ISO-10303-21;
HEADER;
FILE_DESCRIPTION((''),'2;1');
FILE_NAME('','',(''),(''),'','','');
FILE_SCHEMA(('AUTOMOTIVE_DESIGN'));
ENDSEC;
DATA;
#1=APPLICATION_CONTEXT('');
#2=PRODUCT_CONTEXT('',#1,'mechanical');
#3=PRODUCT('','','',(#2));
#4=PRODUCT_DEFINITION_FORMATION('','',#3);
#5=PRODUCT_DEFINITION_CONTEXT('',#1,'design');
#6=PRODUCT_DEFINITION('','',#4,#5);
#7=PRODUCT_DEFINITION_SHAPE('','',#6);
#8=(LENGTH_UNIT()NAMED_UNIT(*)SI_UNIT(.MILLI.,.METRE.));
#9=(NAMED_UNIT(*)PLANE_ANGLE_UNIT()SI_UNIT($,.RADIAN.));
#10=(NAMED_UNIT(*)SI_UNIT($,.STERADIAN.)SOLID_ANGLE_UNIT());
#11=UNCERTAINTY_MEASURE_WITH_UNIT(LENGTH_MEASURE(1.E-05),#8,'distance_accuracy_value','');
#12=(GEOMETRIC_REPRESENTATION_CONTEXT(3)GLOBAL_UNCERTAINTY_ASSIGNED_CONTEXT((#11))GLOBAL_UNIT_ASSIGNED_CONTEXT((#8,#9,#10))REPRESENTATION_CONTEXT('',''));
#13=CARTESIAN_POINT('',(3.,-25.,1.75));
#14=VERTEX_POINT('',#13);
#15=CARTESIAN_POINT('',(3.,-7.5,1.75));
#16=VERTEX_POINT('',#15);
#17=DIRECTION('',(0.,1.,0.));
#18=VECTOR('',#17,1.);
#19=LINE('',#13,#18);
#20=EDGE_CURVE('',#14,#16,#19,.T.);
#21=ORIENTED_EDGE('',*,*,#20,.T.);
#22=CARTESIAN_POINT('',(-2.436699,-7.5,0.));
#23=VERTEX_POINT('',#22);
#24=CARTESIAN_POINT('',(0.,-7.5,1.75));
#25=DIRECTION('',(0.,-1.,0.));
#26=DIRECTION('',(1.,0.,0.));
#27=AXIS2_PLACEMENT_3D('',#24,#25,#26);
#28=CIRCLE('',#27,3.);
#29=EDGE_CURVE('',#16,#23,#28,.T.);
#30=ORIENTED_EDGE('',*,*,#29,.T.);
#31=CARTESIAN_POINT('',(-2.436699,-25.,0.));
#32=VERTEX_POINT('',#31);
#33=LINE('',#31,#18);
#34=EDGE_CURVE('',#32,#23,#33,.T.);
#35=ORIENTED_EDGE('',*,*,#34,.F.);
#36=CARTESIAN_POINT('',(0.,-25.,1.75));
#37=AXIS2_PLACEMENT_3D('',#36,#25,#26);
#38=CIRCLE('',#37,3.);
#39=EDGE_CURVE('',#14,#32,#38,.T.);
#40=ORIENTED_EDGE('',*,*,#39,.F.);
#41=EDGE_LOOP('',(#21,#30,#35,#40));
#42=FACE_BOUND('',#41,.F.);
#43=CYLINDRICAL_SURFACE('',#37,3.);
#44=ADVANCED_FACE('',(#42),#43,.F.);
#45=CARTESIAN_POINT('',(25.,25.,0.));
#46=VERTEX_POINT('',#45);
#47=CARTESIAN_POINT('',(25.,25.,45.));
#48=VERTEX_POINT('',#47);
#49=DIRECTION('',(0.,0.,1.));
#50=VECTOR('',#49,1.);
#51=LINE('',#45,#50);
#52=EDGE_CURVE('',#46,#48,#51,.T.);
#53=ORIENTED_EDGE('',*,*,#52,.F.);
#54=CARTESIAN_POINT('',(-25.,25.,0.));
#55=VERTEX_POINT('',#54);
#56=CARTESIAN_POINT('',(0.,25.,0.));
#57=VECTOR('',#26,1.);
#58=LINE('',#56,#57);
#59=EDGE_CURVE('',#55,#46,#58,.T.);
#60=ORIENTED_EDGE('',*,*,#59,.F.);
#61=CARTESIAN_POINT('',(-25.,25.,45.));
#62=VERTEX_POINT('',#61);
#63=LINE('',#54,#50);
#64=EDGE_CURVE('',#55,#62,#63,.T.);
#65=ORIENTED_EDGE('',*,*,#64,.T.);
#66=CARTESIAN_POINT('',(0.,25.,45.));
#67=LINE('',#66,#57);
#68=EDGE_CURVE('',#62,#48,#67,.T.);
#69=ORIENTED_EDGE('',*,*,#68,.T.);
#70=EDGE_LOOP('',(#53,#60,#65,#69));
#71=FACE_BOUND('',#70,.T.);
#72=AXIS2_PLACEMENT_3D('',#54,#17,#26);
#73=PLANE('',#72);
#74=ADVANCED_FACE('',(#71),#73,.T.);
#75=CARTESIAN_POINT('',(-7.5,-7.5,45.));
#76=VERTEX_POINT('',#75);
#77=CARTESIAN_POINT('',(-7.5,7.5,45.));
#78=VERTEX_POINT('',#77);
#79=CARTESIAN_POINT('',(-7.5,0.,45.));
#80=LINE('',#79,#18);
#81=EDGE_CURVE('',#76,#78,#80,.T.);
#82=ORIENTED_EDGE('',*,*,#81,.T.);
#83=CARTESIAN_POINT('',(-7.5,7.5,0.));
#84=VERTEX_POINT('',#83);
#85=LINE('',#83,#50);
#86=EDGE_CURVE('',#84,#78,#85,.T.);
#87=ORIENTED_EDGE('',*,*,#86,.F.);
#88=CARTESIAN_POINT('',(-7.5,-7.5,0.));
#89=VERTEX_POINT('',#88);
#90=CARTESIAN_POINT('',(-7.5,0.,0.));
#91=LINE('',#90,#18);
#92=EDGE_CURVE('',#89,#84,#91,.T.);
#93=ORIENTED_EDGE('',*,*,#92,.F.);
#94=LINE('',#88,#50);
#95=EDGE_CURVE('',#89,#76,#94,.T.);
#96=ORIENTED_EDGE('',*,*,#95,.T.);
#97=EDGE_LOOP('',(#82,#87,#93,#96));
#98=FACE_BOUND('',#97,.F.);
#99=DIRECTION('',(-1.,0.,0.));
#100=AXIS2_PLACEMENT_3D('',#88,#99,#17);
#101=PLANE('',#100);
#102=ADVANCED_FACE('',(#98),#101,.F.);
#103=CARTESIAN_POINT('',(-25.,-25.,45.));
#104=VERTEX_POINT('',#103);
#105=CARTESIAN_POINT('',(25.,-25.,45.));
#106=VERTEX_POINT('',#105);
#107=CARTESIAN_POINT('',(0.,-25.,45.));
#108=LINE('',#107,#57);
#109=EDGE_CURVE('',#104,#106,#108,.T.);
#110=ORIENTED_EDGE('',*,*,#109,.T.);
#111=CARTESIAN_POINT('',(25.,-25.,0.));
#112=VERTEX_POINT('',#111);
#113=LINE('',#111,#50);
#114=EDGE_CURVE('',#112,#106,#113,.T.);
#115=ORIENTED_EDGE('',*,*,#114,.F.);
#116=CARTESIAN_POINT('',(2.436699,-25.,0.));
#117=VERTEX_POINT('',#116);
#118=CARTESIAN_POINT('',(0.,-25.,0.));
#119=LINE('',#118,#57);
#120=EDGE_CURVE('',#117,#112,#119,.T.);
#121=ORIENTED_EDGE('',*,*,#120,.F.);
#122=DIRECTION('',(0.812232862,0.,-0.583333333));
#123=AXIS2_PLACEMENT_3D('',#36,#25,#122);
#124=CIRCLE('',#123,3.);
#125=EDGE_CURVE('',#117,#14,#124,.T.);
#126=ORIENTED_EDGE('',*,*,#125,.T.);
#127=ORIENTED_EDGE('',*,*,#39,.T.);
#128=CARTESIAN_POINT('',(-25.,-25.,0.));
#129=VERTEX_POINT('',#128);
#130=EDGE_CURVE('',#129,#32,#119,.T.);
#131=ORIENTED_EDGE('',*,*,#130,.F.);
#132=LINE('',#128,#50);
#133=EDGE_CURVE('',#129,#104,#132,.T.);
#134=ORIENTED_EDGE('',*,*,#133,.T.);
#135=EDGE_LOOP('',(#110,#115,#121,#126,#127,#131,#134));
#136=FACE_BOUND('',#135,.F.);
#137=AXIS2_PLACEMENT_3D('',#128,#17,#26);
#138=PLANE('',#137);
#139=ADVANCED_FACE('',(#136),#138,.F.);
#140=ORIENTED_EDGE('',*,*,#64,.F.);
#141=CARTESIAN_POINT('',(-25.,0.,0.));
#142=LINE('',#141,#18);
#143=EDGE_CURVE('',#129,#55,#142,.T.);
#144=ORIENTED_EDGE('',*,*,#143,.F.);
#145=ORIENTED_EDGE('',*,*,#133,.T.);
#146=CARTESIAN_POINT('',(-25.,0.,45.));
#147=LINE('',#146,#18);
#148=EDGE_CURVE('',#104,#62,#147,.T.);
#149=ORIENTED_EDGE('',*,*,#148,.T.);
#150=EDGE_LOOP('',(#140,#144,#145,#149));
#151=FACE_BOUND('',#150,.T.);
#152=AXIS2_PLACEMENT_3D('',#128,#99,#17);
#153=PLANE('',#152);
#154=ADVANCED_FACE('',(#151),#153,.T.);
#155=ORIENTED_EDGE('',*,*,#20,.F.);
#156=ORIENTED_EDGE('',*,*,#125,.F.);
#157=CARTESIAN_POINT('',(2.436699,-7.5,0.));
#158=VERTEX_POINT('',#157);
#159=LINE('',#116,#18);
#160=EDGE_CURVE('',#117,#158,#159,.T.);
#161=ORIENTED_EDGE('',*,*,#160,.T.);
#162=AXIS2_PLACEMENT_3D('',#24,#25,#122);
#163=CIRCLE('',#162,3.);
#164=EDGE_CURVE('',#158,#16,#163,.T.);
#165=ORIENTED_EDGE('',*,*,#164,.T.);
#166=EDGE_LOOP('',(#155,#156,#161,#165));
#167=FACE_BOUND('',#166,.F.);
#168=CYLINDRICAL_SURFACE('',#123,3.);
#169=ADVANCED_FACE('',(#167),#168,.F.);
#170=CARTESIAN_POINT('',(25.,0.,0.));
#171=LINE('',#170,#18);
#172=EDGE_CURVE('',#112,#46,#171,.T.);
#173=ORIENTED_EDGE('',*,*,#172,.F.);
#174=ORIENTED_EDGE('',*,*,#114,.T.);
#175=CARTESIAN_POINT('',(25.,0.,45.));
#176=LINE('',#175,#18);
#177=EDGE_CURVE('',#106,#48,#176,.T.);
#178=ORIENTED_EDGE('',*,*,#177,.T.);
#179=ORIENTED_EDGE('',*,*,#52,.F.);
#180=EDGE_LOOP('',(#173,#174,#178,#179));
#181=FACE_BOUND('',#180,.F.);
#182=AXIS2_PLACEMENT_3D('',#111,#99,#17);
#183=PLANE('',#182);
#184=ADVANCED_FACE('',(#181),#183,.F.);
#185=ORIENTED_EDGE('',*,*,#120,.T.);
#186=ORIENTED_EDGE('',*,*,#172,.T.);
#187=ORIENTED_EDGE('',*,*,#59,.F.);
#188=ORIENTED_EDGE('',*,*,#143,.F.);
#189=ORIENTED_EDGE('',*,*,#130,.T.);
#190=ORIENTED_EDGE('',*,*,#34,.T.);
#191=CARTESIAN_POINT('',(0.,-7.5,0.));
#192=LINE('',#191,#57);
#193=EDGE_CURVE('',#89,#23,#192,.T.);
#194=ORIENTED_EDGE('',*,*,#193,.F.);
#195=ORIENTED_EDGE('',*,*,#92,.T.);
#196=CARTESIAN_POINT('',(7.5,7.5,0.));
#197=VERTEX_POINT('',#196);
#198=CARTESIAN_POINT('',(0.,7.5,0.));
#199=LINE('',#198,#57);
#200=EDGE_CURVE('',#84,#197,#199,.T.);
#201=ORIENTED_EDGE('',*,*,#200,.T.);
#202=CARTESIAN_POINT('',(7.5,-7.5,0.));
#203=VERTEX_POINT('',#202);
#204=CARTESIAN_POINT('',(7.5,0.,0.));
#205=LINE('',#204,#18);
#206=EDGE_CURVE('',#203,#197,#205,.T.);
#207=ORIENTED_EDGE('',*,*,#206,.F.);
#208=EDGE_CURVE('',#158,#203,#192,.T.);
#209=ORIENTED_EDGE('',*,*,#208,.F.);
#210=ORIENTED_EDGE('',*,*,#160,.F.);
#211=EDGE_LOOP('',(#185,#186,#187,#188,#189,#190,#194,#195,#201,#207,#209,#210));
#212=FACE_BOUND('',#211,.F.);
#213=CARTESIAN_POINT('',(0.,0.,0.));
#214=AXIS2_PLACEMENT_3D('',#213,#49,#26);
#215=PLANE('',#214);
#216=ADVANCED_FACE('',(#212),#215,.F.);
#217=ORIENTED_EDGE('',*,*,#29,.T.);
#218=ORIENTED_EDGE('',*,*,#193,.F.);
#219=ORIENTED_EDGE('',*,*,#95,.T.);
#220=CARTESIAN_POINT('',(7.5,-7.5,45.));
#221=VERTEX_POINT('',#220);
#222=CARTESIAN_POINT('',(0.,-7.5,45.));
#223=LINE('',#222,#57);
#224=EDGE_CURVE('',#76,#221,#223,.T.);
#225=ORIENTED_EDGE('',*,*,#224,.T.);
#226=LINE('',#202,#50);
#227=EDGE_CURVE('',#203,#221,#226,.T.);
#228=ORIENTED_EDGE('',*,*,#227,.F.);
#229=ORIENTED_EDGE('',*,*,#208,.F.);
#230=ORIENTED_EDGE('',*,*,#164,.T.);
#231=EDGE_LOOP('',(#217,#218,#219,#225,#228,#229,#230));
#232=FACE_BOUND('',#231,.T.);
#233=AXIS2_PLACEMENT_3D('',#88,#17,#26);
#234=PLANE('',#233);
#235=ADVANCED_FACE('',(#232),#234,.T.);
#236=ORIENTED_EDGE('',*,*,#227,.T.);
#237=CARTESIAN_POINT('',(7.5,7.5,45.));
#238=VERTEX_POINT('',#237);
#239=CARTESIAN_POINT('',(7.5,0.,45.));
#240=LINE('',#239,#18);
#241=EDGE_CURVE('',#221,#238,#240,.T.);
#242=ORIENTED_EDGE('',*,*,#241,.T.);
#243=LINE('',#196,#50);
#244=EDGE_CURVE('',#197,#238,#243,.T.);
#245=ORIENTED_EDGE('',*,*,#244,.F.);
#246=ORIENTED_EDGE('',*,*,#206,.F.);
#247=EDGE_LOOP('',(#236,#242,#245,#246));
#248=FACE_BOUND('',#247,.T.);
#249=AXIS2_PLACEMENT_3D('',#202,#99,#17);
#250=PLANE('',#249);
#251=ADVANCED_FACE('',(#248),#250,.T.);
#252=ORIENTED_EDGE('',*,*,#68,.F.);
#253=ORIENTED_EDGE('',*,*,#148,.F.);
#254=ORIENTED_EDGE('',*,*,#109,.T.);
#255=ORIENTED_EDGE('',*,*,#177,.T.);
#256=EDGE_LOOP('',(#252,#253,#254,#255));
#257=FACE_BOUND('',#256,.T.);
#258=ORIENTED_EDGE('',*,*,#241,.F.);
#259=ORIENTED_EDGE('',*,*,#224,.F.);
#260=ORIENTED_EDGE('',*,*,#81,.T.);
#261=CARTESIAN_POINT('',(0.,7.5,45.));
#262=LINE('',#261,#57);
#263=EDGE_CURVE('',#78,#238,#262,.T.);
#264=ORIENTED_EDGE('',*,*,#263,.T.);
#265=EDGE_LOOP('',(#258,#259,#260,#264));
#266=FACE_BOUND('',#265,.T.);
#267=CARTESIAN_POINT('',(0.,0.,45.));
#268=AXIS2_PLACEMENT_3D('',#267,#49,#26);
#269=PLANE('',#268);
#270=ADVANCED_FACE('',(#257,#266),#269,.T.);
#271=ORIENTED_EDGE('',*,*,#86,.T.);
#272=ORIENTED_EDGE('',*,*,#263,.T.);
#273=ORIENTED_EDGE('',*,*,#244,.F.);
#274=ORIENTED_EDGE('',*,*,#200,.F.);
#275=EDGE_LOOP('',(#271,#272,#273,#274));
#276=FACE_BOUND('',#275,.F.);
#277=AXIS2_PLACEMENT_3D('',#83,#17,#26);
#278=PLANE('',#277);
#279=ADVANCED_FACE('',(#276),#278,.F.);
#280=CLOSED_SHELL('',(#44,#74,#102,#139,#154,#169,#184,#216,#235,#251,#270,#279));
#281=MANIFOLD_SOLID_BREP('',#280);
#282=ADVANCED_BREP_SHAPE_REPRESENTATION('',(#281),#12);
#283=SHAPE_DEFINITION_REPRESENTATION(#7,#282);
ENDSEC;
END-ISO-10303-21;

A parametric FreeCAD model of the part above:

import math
import FreeCAD as App
import Part
import Sketcher
from FreeCAD import Vector
Q = App.Units.Quantity

doc = App.newDocument("Part")
body = doc.addObject("PartDesign::Body", "Body")

# Sketch on XY plane
sketch1 = body.newObject("Sketcher::SketchObject", "Sketch")
sketch1.AttachmentSupport = (doc.getObject("XY_Plane"), [""])
sketch1.MapMode = "FlatFace"
sketch1.addGeometry(Part.LineSegment(Vector(-25, 25, 0), Vector(-25, -25, 0)), False)
sketch1.addGeometry(Part.LineSegment(Vector(-25, -25, 0), Vector(25, -25, 0)), False)
sketch1.addGeometry(Part.LineSegment(Vector(25, -25, 0), Vector(25, 25, 0)), False)
sketch1.addGeometry(Part.LineSegment(Vector(25, 25, 0), Vector(-25, 25, 0)), False)
sketch1.addGeometry(Part.LineSegment(Vector(8, -8, 0), Vector(-8, -8, 0)), False)
sketch1.addGeometry(Part.LineSegment(Vector(-8, -8, 0), Vector(-8, 8, 0)), False)
sketch1.addGeometry(Part.LineSegment(Vector(-8, 8, 0), Vector(8, 8, 0)), False)
sketch1.addGeometry(Part.LineSegment(Vector(8, 8, 0), Vector(8, -8, 0)), False)
sketch1.addConstraint(Sketcher.Constraint("Coincident", 0, 2, 1, 1))
sketch1.addConstraint(Sketcher.Constraint("Coincident", 1, 2, 2, 1))
sketch1.addConstraint(Sketcher.Constraint("Coincident", 2, 2, 3, 1))
sketch1.addConstraint(Sketcher.Constraint("Coincident", 3, 2, 0, 1))
sketch1.addConstraint(Sketcher.Constraint("Coincident", 4, 2, 5, 1))
sketch1.addConstraint(Sketcher.Constraint("Coincident", 5, 2, 6, 1))
sketch1.addConstraint(Sketcher.Constraint("Coincident", 6, 2, 7, 1))
sketch1.addConstraint(Sketcher.Constraint("Coincident", 7, 2, 4, 1))
sketch1.addConstraint(Sketcher.Constraint("Vertical", 0))
sketch1.addConstraint(Sketcher.Constraint("Horizontal", 1))
sketch1.addConstraint(Sketcher.Constraint("Vertical", 2))
sketch1.addConstraint(Sketcher.Constraint("Horizontal", 3))
sketch1.addConstraint(Sketcher.Constraint("Horizontal", 4))
sketch1.addConstraint(Sketcher.Constraint("Vertical", 5))
sketch1.addConstraint(Sketcher.Constraint("Horizontal", 6))
sketch1.addConstraint(Sketcher.Constraint("Vertical", 7))
sketch1.addConstraint(Sketcher.Constraint("Symmetric", 0, 2, 2, 2, -1, 1))
sketch1.addConstraint(Sketcher.Constraint("Symmetric", 4, 2, 6, 2, -1, 1))
sketch1.addConstraint(Sketcher.Constraint("Equal", 3, 0))
sketch1.addConstraint(Sketcher.Constraint("Equal", 6, 5))
sketch1.addConstraint(Sketcher.Constraint("DistanceX", 1, 1, 1, 2, Q("50 mm")))
sketch1.addConstraint(Sketcher.Constraint("DistanceX", 4, 2, 4, 1, Q("15 mm")))
pad1 = body.newObject("PartDesign::Pad", "Pad")
pad1.Profile = sketch1
pad1.Length = 45

# Sketch on XZ plane
sketch2 = body.newObject("Sketcher::SketchObject", "Sketch001")
sketch2.AttachmentSupport = (doc.getObject("XZ_Plane"), [""])
sketch2.MapMode = "FlatFace"
sketch2.AttachmentOffset = App.Placement(Vector(0, 0, 25), App.Rotation())
sketch2.addGeometry(Part.ArcOfCircle(Part.Circle(Vector(0, 1.8, 0), Vector(0, 0, 1), 3), math.radians(-36), math.radians(0)), False)
sketch2.addGeometry(Part.ArcOfCircle(Part.Circle(Vector(0, 1.8, 0), Vector(0, 0, 1), 3), math.radians(0), math.radians(216)), False)
sketch2.addGeometry(Part.LineSegment(Vector(-2.4, 0, 0), Vector(2.4, 0, 0)), False)
sketch2.addConstraint(Sketcher.Constraint("Tangent", 0, 2, 1, 1))
sketch2.addConstraint(Sketcher.Constraint("Coincident", 1, 2, 2, 1))
sketch2.addConstraint(Sketcher.Constraint("Coincident", 2, 2, 0, 1))
sketch2.addConstraint(Sketcher.Constraint("Horizontal", 2))
sketch2.addConstraint(Sketcher.Constraint("Equal", 0, 1))
sketch2.addConstraint(Sketcher.Constraint("Symmetric", 1, 2, 2, 2, -1, 1))
sketch2.addConstraint(Sketcher.Constraint("Horizontal", 1, 3, 0, 2))
sketch2.addConstraint(Sketcher.Constraint("Radius", 0, Q("3 mm")))
sketch2.addConstraint(Sketcher.Constraint("DistanceY", -1, 1, 0, 3, Q("1.75 mm")))
pocket1 = body.newObject("PartDesign::Pocket", "Pocket")
pocket1.Profile = sketch2
pocket1.Length = 25

doc.recompute()
